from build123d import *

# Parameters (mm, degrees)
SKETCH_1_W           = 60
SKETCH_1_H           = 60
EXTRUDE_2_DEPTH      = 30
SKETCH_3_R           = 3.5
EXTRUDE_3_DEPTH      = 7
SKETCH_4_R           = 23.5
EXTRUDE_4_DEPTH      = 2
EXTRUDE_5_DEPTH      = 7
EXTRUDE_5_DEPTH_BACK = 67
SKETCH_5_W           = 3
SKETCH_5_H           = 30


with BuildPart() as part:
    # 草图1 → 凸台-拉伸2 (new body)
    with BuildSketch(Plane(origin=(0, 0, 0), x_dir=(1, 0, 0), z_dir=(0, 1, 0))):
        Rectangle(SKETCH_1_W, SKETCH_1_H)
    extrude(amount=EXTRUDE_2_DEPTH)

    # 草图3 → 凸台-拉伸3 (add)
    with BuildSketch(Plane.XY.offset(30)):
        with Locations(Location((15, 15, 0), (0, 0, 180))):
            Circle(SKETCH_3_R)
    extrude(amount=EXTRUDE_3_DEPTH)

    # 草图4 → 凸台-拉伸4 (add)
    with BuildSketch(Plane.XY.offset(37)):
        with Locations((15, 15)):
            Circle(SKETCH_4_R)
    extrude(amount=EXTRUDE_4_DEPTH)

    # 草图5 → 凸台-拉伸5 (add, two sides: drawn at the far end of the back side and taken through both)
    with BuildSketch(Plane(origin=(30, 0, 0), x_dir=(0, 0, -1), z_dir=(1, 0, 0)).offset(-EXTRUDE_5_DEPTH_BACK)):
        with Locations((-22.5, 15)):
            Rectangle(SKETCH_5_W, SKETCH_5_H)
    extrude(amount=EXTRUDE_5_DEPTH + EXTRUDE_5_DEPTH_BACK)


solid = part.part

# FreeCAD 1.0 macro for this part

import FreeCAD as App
import Part
import Sketcher

V = App.Vector


def add_polygon(sketch, points):
    """Adds a closed chain of lines whose ends are joined by coincident constraints."""
    first, n = sketch.GeometryCount, len(points)
    for a, b in zip(points, points[1:] + points[:1]):
        sketch.addGeometry(Part.LineSegment(App.Vector(*a, 0), App.Vector(*b, 0)), False)
    for i in range(n):
        sketch.addConstraint(Sketcher.Constraint("Coincident", first + i, 2, first + (i + 1) % n, 1))

doc = App.newDocument("Part")
params = doc.addObject("Spreadsheet::Sheet", "Params")
for row, (alias, value) in enumerate([
    ("sketch1_width", "60 mm"),
    ("pad1_length", "30 mm"),
    ("sketch2_diameter", "7 mm"),
    ("pad2_length", "7 mm"),
    ("sketch3_diameter", "47 mm"),
    ("pad3_length", "2 mm"),
    ("sketch4_width", "30 mm"),
    ("sketch4_height", "3 mm"),
    ("pad4_length", "7 mm"),
    ("pad4_length2", "67 mm"),
], start=1):
    params.set(f"A{row}", alias)
    params.set(f"B{row}", "=" + value)
    params.setAlias(f"B{row}", alias)

body = doc.addObject("PartDesign::Body", "Body")

# Sketch on XZ plane
sketch1 = body.newObject("Sketcher::SketchObject", "Sketch")
sketch1.AttachmentSupport = (doc.getObject("XZ_Plane"), [""])
sketch1.MapMode = "FlatFace"
add_polygon(sketch1, [(-30, -30), (-30, 30), (30, 30), (30, -30)])  # lines 0-3
sketch1.addConstraint([
    Sketcher.Constraint("Vertical", 0),
    Sketcher.Constraint("Horizontal", 1),
    Sketcher.Constraint("Vertical", 2),
    Sketcher.Constraint("Horizontal", 3),
    Sketcher.Constraint("Symmetric", 0, 2, 2, 2, -1, 1),
    Sketcher.Constraint("Equal", 3, 0),
    Sketcher.Constraint("DistanceX", 1, 1, 1, 2, 60.0),
])
sketch1.setExpression("Constraints[10]", "Params.sketch1_width")
pad1 = body.newObject("PartDesign::Pad", "Pad")
pad1.Profile = sketch1
pad1.setExpression("Length", "Params.pad1_length")
pad1.Reversed = True

# Sketch on XY plane
sketch2 = body.newObject("Sketcher::SketchObject", "Sketch001")
sketch2.AttachmentSupport = (doc.getObject("XY_Plane"), [""])
sketch2.MapMode = "FlatFace"
sketch2.AttachmentOffset = App.Placement(V(0, 0, 30), App.Rotation())
sketch2.addGeometry(Part.Circle(V(15, 15, 0), V(0, 0, 1), 3.5), False)
sketch2.addConstraint([
    Sketcher.Constraint("Diameter", 0, 7.0),
    Sketcher.Constraint("DistanceX", -1, 1, 0, 3, 15.0),
    Sketcher.Constraint("DistanceY", -1, 1, 0, 3, 15.0),
])
sketch2.setExpression("Constraints[0]", "Params.sketch2_diameter")
pad2 = body.newObject("PartDesign::Pad", "Pad001")
pad2.Profile = sketch2
pad2.setExpression("Length", "Params.pad2_length")

# Sketch on XY plane
sketch3 = body.newObject("Sketcher::SketchObject", "Sketch002")
sketch3.AttachmentSupport = (doc.getObject("XY_Plane"), [""])
sketch3.MapMode = "FlatFace"
sketch3.AttachmentOffset = App.Placement(V(0, 0, 37), App.Rotation())
sketch3.addGeometry(Part.Circle(V(15, 15, 0), V(0, 0, 1), 24), False)
sketch3.addConstraint([
    Sketcher.Constraint("Diameter", 0, 47.0),
    Sketcher.Constraint("DistanceX", -1, 1, 0, 3, 15.0),
    Sketcher.Constraint("DistanceY", -1, 1, 0, 3, 15.0),
])
sketch3.setExpression("Constraints[0]", "Params.sketch3_diameter")
pad3 = body.newObject("PartDesign::Pad", "Pad002")
pad3.Profile = sketch3
pad3.setExpression("Length", "Params.pad3_length")

# Sketch on YZ plane
sketch4 = body.newObject("Sketcher::SketchObject", "Sketch003")
sketch4.AttachmentSupport = (doc.getObject("YZ_Plane"), [""])
sketch4.MapMode = "FlatFace"
sketch4.AttachmentOffset = App.Placement(V(0, 0, 30), App.Rotation())
add_polygon(sketch4, [(30, 24), (0, 24), (0, 21), (30, 21)])  # lines 0-3
sketch4.addConstraint([
    Sketcher.Constraint("Horizontal", 0),
    Sketcher.Constraint("Vertical", 1),
    Sketcher.Constraint("Horizontal", 2),
    Sketcher.Constraint("Vertical", 3),
    Sketcher.Constraint("PointOnObject", 0, 2, -2),
    Sketcher.Constraint("DistanceX", 0, 2, 0, 1, 30.0),
    Sketcher.Constraint("DistanceY", 1, 2, 1, 1, 3.0),
    Sketcher.Constraint("DistanceY", -1, 1, 0, 2, 24.0),
])
sketch4.setExpression("Constraints[9]", "Params.sketch4_width")
sketch4.setExpression("Constraints[10]", "Params.sketch4_height")
pad4 = body.newObject("PartDesign::Pad", "Pad003")
pad4.Profile = sketch4
pad4.Type = "TwoLengths"
pad4.setExpression("Length", "Params.pad4_length")
pad4.setExpression("Length2", "Params.pad4_length2")

doc.recompute()
